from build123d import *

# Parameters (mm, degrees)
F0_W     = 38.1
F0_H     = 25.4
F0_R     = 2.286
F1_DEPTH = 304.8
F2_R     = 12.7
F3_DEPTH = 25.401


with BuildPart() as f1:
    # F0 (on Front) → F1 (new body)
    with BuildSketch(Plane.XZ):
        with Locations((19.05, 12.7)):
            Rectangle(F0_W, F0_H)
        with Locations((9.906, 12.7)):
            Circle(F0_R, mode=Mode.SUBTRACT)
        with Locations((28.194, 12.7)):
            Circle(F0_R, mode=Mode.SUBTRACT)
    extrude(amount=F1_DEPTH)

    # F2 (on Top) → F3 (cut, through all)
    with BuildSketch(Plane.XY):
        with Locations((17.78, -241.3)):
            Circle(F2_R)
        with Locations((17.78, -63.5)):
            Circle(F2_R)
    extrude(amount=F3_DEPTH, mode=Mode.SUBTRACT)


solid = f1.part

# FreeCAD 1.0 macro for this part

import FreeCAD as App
import Part
import Sketcher

V = App.Vector
Q = App.Units.Quantity


def add_polygon(sketch, points):
    """Adds a closed chain of lines whose ends are joined by coincident constraints."""
    first, n = sketch.GeometryCount, len(points)
    for a, b in zip(points, points[1:] + points[:1]):
        sketch.addGeometry(Part.LineSegment(App.Vector(*a, 0), App.Vector(*b, 0)), False)
    for i in range(n):
        sketch.addConstraint(Sketcher.Constraint("Coincident", first + i, 2, first + (i + 1) % n, 1))

doc = App.newDocument("Part")
body = doc.addObject("PartDesign::Body", "Body")

sketch1 = body.newObject("Sketcher::SketchObject", "Sketch")
sketch1.AttachmentSupport = (doc.getObject("XZ_Plane"), [""])
sketch1.MapMode = "FlatFace"
add_polygon(sketch1, [(0, 25.4), (0, 0), (38.1, 0), (38.1, 25.4)])
sketch1.addGeometry(Part.Circle(V(9.906, 12.7, 0), V(0, 0, 1), 2.286), False)
sketch1.addGeometry(Part.Circle(V(28.194, 12.7, 0), V(0, 0, 1), 2.286), False)
sketch1.addConstraint([
    Sketcher.Constraint("Vertical", 0),
    Sketcher.Constraint("Horizontal", 1),
    Sketcher.Constraint("Vertical", 2),
    Sketcher.Constraint("Horizontal", 3),
    Sketcher.Constraint("Coincident", 0, 2, -1, 1),
    Sketcher.Constraint("Equal", 4, 5),
    Sketcher.Constraint("Horizontal", 4, 3, 5, 3),
    Sketcher.Constraint("Diameter", 4, Q("0.18 in")),
    Sketcher.Constraint("DistanceY", 0, 2, 0, 1, Q("1 in")),
    Sketcher.Constraint("DistanceX", 1, 1, 1, 2, Q("1.5 in")),
    Sketcher.Constraint("DistanceY", -1, 1, 4, 3, Q("0.5 in")),
    Sketcher.Constraint("DistanceX", -1, 1, 4, 3, Q("0.39 in")),
    Sketcher.Constraint("DistanceX", -1, 1, 5, 3, Q("1.11 in")),
])
pad1 = body.newObject("PartDesign::Pad", "Pad")
pad1.Profile = sketch1
pad1.Length = Q("12 in")

sketch2 = body.newObject("Sketcher::SketchObject", "Sketch001")
sketch2.AttachmentSupport = (doc.getObject("XY_Plane"), [""])
sketch2.MapMode = "FlatFace"
sketch2.addGeometry([
    Part.Circle(V(17.78, -241.3, 0), V(0, 0, 1), 12.7),
    Part.Circle(V(17.78, -63.5, 0), V(0, 0, 1), 12.7),
], False)
sketch2.addConstraint([
    Sketcher.Constraint("Equal", 0, 1),
    Sketcher.Constraint("Vertical", 0, 3, 1, 3),
    Sketcher.Constraint("Diameter", 0, Q("1 in")),
    Sketcher.Constraint("DistanceY", 0, 3, 1, 3, Q("7 in")),
    Sketcher.Constraint("DistanceX", -1, 1, 0, 3, Q("0.7 in")),
    Sketcher.Constraint("DistanceY", 0, 3, -1, 1, Q("9.5 in")),
])
pocket1 = body.newObject("PartDesign::Pocket", "Pocket")
pocket1.Profile = sketch2
pocket1.Type = "ThroughAll"
pocket1.Reversed = True

doc.recompute()
